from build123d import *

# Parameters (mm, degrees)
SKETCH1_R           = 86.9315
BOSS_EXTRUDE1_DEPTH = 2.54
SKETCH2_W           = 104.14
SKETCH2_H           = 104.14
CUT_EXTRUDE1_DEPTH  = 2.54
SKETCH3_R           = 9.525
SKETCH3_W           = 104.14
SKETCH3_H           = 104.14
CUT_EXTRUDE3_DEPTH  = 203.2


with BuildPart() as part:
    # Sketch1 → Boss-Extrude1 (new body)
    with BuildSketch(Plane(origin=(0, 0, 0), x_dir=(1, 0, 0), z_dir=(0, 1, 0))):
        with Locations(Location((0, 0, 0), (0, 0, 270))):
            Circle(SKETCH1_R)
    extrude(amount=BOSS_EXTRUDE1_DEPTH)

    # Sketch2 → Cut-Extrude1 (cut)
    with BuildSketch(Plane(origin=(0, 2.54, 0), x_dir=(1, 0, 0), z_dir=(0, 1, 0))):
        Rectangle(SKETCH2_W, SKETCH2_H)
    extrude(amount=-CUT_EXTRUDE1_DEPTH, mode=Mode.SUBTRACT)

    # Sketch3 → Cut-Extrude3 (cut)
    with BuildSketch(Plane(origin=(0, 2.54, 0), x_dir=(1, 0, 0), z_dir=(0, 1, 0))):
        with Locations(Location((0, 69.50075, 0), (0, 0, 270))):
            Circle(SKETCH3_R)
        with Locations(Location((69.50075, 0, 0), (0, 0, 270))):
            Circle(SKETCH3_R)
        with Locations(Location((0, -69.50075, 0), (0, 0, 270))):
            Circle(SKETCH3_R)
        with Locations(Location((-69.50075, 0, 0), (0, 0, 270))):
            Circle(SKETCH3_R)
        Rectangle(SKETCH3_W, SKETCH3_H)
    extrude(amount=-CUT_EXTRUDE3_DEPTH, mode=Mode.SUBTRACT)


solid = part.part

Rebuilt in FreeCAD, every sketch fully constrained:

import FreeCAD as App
import Part
import Sketcher
from FreeCAD import Vector
Q = App.Units.Quantity


def add_polygon(sketch, points):
    """Adds a closed chain of lines whose ends are joined by coincident constraints."""
    first, n = sketch.GeometryCount, len(points)
    for a, b in zip(points, points[1:] + points[:1]):
        sketch.addGeometry(Part.LineSegment(App.Vector(*a, 0), App.Vector(*b, 0)), False)
    for i in range(n):
        sketch.addConstraint(Sketcher.Constraint("Coincident", first + i, 2, first + (i + 1) % n, 1))

doc = App.newDocument("Part")
params = doc.addObject("Spreadsheet::Sheet", "Params")
for row, (alias, value) in enumerate([
    ("sketch1_diameter", "6.845 in"),
    ("pad1_length", "0.1 in"),
    ("sketch2_width", "4.1 in"),
    ("pocket1_length", "0.1 in"),
    ("sketch3_diameter", "0.75 in"),
    ("sketch3_width", "4.1 in"),
    ("pocket2_length", "8 in"),
], start=1):
    params.set(f"A{row}", alias)
    params.set(f"B{row}", "=" + value)
    params.setAlias(f"B{row}", alias)

body = doc.addObject("PartDesign::Body", "Body")

# Sketch on XZ plane
sketch1 = body.newObject("Sketcher::SketchObject", "Sketch")
sketch1.AttachmentSupport = (doc.getObject("XZ_Plane"), [""])
sketch1.MapMode = "FlatFace"
sketch1.addGeometry(Part.Circle(Vector(0, 0, 0), Vector(0, 0, 1), 87), False)
sketch1.addConstraint([
    Sketcher.Constraint("Coincident", 0, 3, -1, 1),
    Sketcher.Constraint("Diameter", 0, Q("6.845 in")),
])
sketch1.setExpression("Constraints[1]", "Params.sketch1_diameter")
pad1 = body.newObject("PartDesign::Pad", "Pad")
pad1.Profile = sketch1
pad1.setExpression("Length", "Params.pad1_length")
pad1.Reversed = True

# Sketch on XZ plane
sketch2 = body.newObject("Sketcher::SketchObject", "Sketch001")
sketch2.AttachmentSupport = (doc.getObject("XZ_Plane"), [""])
sketch2.MapMode = "FlatFace"
sketch2.AttachmentOffset = App.Placement(Vector(0, 0, -0.1 * 25.4), App.Rotation())
add_polygon(sketch2, [(-52, -52), (-52, 52), (52, 52), (52, -52)])  # lines 0-3
sketch2.addConstraint([
    Sketcher.Constraint("Vertical", 0),
    Sketcher.Constraint("Horizontal", 1),
    Sketcher.Constraint("Vertical", 2),
    Sketcher.Constraint("Horizontal", 3),
    Sketcher.Constraint("Symmetric", 0, 2, 2, 2, -1, 1),
    Sketcher.Constraint("Equal", 3, 0),
    Sketcher.Constraint("DistanceX", 1, 1, 1, 2, Q("4.1 in")),
])
sketch2.setExpression("Constraints[10]", "Params.sketch2_width")
pocket1 = body.newObject("PartDesign::Pocket", "Pocket")
pocket1.Profile = sketch2
pocket1.setExpression("Length", "Params.pocket1_length")
pocket1.Reversed = True

# Sketch on XZ plane
sketch3 = body.newObject("Sketcher::SketchObject", "Sketch002")
sketch3.AttachmentSupport = (doc.getObject("XZ_Plane"), [""])
sketch3.MapMode = "FlatFace"
sketch3.AttachmentOffset = App.Placement(Vector(0, 0, -0.1 * 25.4), App.Rotation())
sketch3.addGeometry(Part.Circle(Vector(0, -70, 0), Vector(0, 0, 1), 10), False)  # 0
sketch3.addGeometry(Part.Circle(Vector(70, 0, 0), Vector(0, 0, 1), 10), False)  # 1
sketch3.addGeometry(Part.Circle(Vector(0, 70, 0), Vector(0, 0, 1), 10), False)  # 2
sketch3.addGeometry(Part.Circle(Vector(-70, 0, 0), Vector(0, 0, 1), 10), False)  # 3
add_polygon(sketch3, [(-52, -52), (-52, 52), (52, 52), (52, -52)])  # lines 4-7
sketch3.addConstraint([
    Sketcher.Constraint("Vertical", 4),
    Sketcher.Constraint("Horizontal", 5),
    Sketcher.Constraint("Vertical", 6),
    Sketcher.Constraint("Horizontal", 7),
    Sketcher.Constraint("Equal", 0, 1),
    Sketcher.Constraint("Equal", 1, 2),
    Sketcher.Constraint("Equal", 2, 3),
    Sketcher.Constraint("Symmetric", 0, 3, 2, 3, -1, 1),
    Sketcher.Constraint("Symmetric", 1, 3, 3, 3, -1, 1),
    Sketcher.Constraint("Symmetric", 4, 2, 6, 2, -1, 1),
    Sketcher.Constraint("PointOnObject", 0, 3, -2),
    Sketcher.Constraint("PointOnObject", 1, 3, -1),
    Sketcher.Constraint("Equal", 7, 4),
    Sketcher.Constraint("Diameter", 0, Q("0.75 in")),
    Sketcher.Constraint("DistanceX", 5, 1, 5, 2, Q("4.1 in")),
    Sketcher.Constraint("DistanceY", 0, 3, 2, 3, Q("5.4725 in")),
    Sketcher.Constraint("DistanceX", 3, 3, 1, 3, Q("5.4725 in")),
])
sketch3.setExpression("Constraints[17]", "Params.sketch3_diameter")
sketch3.setExpression("Constraints[18]", "Params.sketch3_width")
pocket2 = body.newObject("PartDesign::Pocket", "Pocket001")
pocket2.Profile = sketch3
pocket2.setExpression("Length", "Params.pocket2_length")
pocket2.Reversed = True

doc.recompute()
